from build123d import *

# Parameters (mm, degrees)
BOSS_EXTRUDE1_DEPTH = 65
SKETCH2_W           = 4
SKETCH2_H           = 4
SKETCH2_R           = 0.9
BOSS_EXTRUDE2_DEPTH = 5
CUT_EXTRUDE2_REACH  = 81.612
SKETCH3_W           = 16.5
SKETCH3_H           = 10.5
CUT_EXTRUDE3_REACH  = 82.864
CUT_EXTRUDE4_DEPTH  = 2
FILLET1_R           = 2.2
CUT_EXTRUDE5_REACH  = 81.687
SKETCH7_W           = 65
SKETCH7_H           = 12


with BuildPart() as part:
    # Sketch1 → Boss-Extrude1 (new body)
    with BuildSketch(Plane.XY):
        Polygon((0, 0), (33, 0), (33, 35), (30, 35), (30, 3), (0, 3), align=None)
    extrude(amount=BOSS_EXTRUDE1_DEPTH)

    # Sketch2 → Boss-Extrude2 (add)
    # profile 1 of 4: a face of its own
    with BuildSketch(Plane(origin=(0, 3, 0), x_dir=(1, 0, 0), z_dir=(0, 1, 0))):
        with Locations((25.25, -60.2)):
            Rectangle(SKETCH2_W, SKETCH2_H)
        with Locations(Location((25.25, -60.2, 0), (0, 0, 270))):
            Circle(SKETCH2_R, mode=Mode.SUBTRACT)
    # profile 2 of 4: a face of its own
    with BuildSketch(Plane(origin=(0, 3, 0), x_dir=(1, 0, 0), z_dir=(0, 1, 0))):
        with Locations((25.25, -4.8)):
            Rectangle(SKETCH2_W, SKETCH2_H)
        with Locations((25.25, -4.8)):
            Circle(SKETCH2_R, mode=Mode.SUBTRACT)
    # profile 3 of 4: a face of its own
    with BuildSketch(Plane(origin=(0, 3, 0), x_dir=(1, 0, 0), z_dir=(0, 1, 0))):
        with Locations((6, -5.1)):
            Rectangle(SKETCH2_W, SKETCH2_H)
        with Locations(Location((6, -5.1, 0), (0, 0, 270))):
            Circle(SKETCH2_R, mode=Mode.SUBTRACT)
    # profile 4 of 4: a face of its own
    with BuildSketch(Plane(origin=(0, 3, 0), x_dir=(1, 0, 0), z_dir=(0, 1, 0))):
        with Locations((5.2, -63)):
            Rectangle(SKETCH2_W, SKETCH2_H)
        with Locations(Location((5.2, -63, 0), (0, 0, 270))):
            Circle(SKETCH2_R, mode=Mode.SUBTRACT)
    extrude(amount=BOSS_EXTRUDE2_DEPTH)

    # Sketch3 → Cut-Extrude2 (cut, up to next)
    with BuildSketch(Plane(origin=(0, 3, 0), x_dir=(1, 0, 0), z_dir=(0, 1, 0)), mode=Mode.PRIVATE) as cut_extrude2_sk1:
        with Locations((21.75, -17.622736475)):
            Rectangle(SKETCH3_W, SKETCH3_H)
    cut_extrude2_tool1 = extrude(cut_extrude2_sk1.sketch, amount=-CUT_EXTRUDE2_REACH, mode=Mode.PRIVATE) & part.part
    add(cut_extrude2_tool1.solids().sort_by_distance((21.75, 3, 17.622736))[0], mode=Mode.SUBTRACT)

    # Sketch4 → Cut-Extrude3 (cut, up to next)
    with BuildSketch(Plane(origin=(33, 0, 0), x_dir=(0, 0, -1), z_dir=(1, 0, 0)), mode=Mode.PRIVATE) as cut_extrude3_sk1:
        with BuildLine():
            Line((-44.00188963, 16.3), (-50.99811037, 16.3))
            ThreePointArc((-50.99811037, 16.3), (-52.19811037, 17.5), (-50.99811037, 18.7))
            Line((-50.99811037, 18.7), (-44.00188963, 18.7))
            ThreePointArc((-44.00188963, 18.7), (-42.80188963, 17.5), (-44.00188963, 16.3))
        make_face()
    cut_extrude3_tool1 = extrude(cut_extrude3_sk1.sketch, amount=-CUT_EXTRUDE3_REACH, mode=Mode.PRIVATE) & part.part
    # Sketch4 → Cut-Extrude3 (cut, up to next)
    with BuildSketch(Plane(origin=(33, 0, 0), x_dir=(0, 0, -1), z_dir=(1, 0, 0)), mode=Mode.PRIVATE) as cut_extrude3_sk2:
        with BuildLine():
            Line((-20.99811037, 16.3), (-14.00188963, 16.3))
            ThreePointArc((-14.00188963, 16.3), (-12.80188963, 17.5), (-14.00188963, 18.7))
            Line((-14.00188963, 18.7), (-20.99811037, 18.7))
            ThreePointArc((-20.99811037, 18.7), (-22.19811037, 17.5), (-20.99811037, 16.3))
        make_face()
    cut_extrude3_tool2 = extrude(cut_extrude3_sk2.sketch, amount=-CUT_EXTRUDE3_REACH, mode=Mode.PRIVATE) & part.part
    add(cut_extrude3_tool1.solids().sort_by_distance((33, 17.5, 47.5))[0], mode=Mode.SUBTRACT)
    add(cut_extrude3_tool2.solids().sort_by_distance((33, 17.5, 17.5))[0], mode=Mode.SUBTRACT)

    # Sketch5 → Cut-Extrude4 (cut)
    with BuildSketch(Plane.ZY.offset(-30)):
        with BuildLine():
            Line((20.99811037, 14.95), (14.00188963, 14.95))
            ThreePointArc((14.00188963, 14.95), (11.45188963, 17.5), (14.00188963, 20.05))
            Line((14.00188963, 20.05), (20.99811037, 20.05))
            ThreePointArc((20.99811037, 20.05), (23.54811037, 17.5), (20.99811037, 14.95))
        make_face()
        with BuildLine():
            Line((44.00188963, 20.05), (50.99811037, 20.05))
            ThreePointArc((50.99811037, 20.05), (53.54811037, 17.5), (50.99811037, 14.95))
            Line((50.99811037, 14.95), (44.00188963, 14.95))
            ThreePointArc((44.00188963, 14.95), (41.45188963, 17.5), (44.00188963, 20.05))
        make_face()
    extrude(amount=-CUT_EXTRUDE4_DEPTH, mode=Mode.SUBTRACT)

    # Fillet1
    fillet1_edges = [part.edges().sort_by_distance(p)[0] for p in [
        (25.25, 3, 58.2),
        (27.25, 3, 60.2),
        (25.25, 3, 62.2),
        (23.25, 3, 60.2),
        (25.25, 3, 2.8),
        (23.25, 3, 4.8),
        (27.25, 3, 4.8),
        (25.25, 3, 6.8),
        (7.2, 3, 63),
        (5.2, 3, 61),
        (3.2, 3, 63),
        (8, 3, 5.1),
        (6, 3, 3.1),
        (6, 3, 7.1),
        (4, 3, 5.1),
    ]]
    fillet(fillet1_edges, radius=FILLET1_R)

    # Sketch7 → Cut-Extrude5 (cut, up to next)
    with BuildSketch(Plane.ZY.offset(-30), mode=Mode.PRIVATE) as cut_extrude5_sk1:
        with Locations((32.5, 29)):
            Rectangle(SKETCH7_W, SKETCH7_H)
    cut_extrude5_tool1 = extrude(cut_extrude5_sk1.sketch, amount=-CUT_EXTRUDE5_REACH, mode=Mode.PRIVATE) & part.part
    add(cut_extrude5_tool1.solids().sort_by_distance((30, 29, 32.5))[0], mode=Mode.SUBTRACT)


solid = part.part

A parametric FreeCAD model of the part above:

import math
import FreeCAD as App
import Part
import Sketcher

V = App.Vector


def edges_at(feature, points):
    """Names of the edges that pass closest to the given points."""
    edges = feature.Shape.Edges
    near = lambda p: min(range(len(edges)), key=lambda i: edges[i].distToShape(Part.Vertex(*p))[0])
    return sorted({f"Edge{near(p) + 1}" for p in points})

doc = App.newDocument("Part")
body = doc.addObject("PartDesign::Body", "Body")

# Sketch on XY plane
sketch1 = body.newObject("Sketcher::SketchObject", "Sketch")
sketch1.AttachmentSupport = (doc.getObject("XY_Plane"), [""])
sketch1.MapMode = "FlatFace"
sketch1.addGeometry(Part.LineSegment(V(0, 0, 0), V(33, 0, 0)), False)
sketch1.addGeometry(Part.LineSegment(V(33, 0, 0), V(33, 35, 0)), False)
sketch1.addGeometry(Part.LineSegment(V(33, 35, 0), V(30, 35, 0)), False)
sketch1.addGeometry(Part.LineSegment(V(30, 35, 0), V(30, 3, 0)), False)
sketch1.addGeometry(Part.LineSegment(V(30, 3, 0), V(0, 3, 0)), False)
sketch1.addGeometry(Part.LineSegment(V(0, 3, 0), V(0, 0, 0)), False)
sketch1.addConstraint(Sketcher.Constraint("Coincident", 0, 2, 1, 1))
sketch1.addConstraint(Sketcher.Constraint("Coincident", 1, 2, 2, 1))
sketch1.addConstraint(Sketcher.Constraint("Coincident", 2, 2, 3, 1))
sketch1.addConstraint(Sketcher.Constraint("Coincident", 3, 2, 4, 1))
sketch1.addConstraint(Sketcher.Constraint("Coincident", 4, 2, 5, 1))
sketch1.addConstraint(Sketcher.Constraint("Coincident", 5, 2, 0, 1))
sketch1.addConstraint(Sketcher.Constraint("Horizontal", 0))
sketch1.addConstraint(Sketcher.Constraint("Vertical", 1))
sketch1.addConstraint(Sketcher.Constraint("Horizontal", 2))
sketch1.addConstraint(Sketcher.Constraint("Vertical", 3))
sketch1.addConstraint(Sketcher.Constraint("Horizontal", 4))
sketch1.addConstraint(Sketcher.Constraint("Vertical", 5))
sketch1.addConstraint(Sketcher.Constraint("Coincident", 5, 2, -1, 1))
sketch1.addConstraint(Sketcher.Constraint("Equal", 2, 5))
sketch1.addConstraint(Sketcher.Constraint("DistanceX", 0, 1, 0, 2, 33.0))
sketch1.addConstraint(Sketcher.Constraint("DistanceX", 2, 2, 2, 1, 3.0))
sketch1.addConstraint(Sketcher.Constraint("DistanceY", 1, 1, 1, 2, 35.0))
pad1 = body.newObject("PartDesign::Pad", "Pad")
pad1.Profile = sketch1
pad1.Length = 65

# Sketch on XZ plane
sketch2 = body.newObject("Sketcher::SketchObject", "Sketch001")
sketch2.AttachmentSupport = (doc.getObject("XZ_Plane"), [""])
sketch2.MapMode = "FlatFace"
sketch2.AttachmentOffset = App.Placement(V(0, 0, -3), App.Rotation())
sketch2.addGeometry(Part.LineSegment(V(23.2, 58.2, 0), V(23.2, 62.2, 0)), False)
sketch2.addGeometry(Part.LineSegment(V(23.2, 62.2, 0), V(27.2, 62.2, 0)), False)
sketch2.addGeometry(Part.LineSegment(V(27.2, 62.2, 0), V(27.2, 58.2, 0)), False)
sketch2.addGeometry(Part.LineSegment(V(27.2, 58.2, 0), V(23.2, 58.2, 0)), False)
sketch2.addGeometry(Part.Circle(V(25.2, 60.2, 0), V(0, 0, 1), 0.9), False)
sketch2.addGeometry(Part.LineSegment(V(23.2, 2.8, 0), V(23.2, 6.8, 0)), False)
sketch2.addGeometry(Part.LineSegment(V(23.2, 6.8, 0), V(27.2, 6.8, 0)), False)
sketch2.addGeometry(Part.LineSegment(V(27.2, 6.8, 0), V(27.2, 2.8, 0)), False)
sketch2.addGeometry(Part.LineSegment(V(27.2, 2.8, 0), V(23.2, 2.8, 0)), False)
sketch2.addGeometry(Part.Circle(V(25.2, 4.8, 0), V(0, 0, 1), 0.9), False)
sketch2.addGeometry(Part.LineSegment(V(4, 3.1, 0), V(4, 7.1, 0)), False)
sketch2.addGeometry(Part.LineSegment(V(4, 7.1, 0), V(8, 7.1, 0)), False)
sketch2.addGeometry(Part.LineSegment(V(8, 7.1, 0), V(8, 3.1, 0)), False)
sketch2.addGeometry(Part.LineSegment(V(8, 3.1, 0), V(4, 3.1, 0)), False)
sketch2.addGeometry(Part.Circle(V(6, 5.1, 0), V(0, 0, 1), 0.9), False)
sketch2.addGeometry(Part.LineSegment(V(3.2, 61, 0), V(3.2, 65, 0)), False)
sketch2.addGeometry(Part.LineSegment(V(3.2, 65, 0), V(7.2, 65, 0)), False)
sketch2.addGeometry(Part.LineSegment(V(7.2, 65, 0), V(7.2, 61, 0)), False)
sketch2.addGeometry(Part.LineSegment(V(7.2, 61, 0), V(3.2, 61, 0)), False)
sketch2.addGeometry(Part.Circle(V(5.2, 63, 0), V(0, 0, 1), 0.9), False)
sketch2.addConstraint(Sketcher.Constraint("Coincident", 0, 2, 1, 1))
sketch2.addConstraint(Sketcher.Constraint("Coincident", 1, 2, 2, 1))
sketch2.addConstraint(Sketcher.Constraint("Coincident", 2, 2, 3, 1))
sketch2.addConstraint(Sketcher.Constraint("Coincident", 3, 2, 0, 1))
sketch2.addConstraint(Sketcher.Constraint("Coincident", 5, 2, 6, 1))
sketch2.addConstraint(Sketcher.Constraint("Coincident", 6, 2, 7, 1))
sketch2.addConstraint(Sketcher.Constraint("Coincident", 7, 2, 8, 1))
sketch2.addConstraint(Sketcher.Constraint("Coincident", 8, 2, 5, 1))
sketch2.addConstraint(Sketcher.Constraint("Coincident", 10, 2, 11, 1))
sketch2.addConstraint(Sketcher.Constraint("Coincident", 11, 2, 12, 1))
sketch2.addConstraint(Sketcher.Constraint("Coincident", 12, 2, 13, 1))
sketch2.addConstraint(Sketcher.Constraint("Coincident", 13, 2, 10, 1))
sketch2.addConstraint(Sketcher.Constraint("Coincident", 15, 2, 16, 1))
sketch2.addConstraint(Sketcher.Constraint("Coincident", 16, 2, 17, 1))
sketch2.addConstraint(Sketcher.Constraint("Coincident", 17, 2, 18, 1))
sketch2.addConstraint(Sketcher.Constraint("Coincident", 18, 2, 15, 1))
sketch2.addConstraint(Sketcher.Constraint("Vertical", 0))
sketch2.addConstraint(Sketcher.Constraint("Horizontal", 1))
sketch2.addConstraint(Sketcher.Constraint("Vertical", 2))
sketch2.addConstraint(Sketcher.Constraint("Horizontal", 3))
sketch2.addConstraint(Sketcher.Constraint("Vertical", 5))
sketch2.addConstraint(Sketcher.Constraint("Horizontal", 6))
sketch2.addConstraint(Sketcher.Constraint("Vertical", 7))
sketch2.addConstraint(Sketcher.Constraint("Horizontal", 8))
sketch2.addConstraint(Sketcher.Constraint("Vertical", 10))
sketch2.addConstraint(Sketcher.Constraint("Horizontal", 11))
sketch2.addConstraint(Sketcher.Constraint("Vertical", 12))
sketch2.addConstraint(Sketcher.Constraint("Horizontal", 13))
sketch2.addConstraint(Sketcher.Constraint("Vertical", 15))
sketch2.addConstraint(Sketcher.Constraint("Horizontal", 16))
sketch2.addConstraint(Sketcher.Constraint("Vertical", 17))
sketch2.addConstraint(Sketcher.Constraint("Horizontal", 18))
sketch2.addConstraint(Sketcher.Constraint("Equal", 4, 9))
sketch2.addConstraint(Sketcher.Constraint("Equal", 9, 14))
sketch2.addConstraint(Sketcher.Constraint("Equal", 14, 19))
sketch2.addConstraint(Sketcher.Constraint("Vertical", 4, 3, 9, 3))
sketch2.addConstraint(Sketcher.Constraint("Vertical", 3, 2, 5, 2))
sketch2.addConstraint(Sketcher.Constraint("Vertical", 2, 2, 6, 2))
sketch2.addConstraint(Sketcher.Constraint("Equal", 8, 11))
sketch2.addConstraint(Sketcher.Constraint("Equal", 13, 16))
sketch2.addConstraint(Sketcher.Constraint("Equal", 18, 0))
sketch2.addConstraint(Sketcher.Constraint("Equal", 2, 5))
sketch2.addConstraint(Sketcher.Constraint("Equal", 7, 10))
sketch2.addConstraint(Sketcher.Constraint("Equal", 12, 15))
sketch2.addConstraint(Sketcher.Constraint("Diameter", 4, 1.8))
sketch2.addConstraint(Sketcher.Constraint("DistanceX", 1, 1, 1, 2, 4.0))
sketch2.addConstraint(Sketcher.Constraint("DistanceX", -1, 1, 14, 3, 6.0))
sketch2.addConstraint(Sketcher.Constraint("DistanceY", -1, 1, 19, 3, 63.0))
sketch2.addConstraint(Sketcher.Constraint("DistanceX", -1, 1, 10, 2, 4.0))
sketch2.addConstraint(Sketcher.Constraint("DistanceY", -1, 1, 15, 2, 65.0))
sketch2.addConstraint(Sketcher.Constraint("DistanceX", 0, 2, 4, 3, 2.0))
sketch2.addConstraint(Sketcher.Constraint("DistanceY", 4, 3, 0, 2, 2.0))
sketch2.addConstraint(Sketcher.Constraint("DistanceY", 9, 3, 5, 2, 2.0))
sketch2.addConstraint(Sketcher.Constraint("DistanceY", 14, 3, 10, 2, 2.0))
sketch2.addConstraint(Sketcher.Constraint("DistanceX", 15, 2, 19, 3, 2.0))
sketch2.addConstraint(Sketcher.Constraint("DistanceY", -1, 1, 4, 3, 60.2))
sketch2.addConstraint(Sketcher.Constraint("DistanceY", -1, 1, 9, 3, 4.8))
sketch2.addConstraint(Sketcher.Constraint("DistanceY", -1, 1, 14, 3, 5.1))
sketch2.addConstraint(Sketcher.Constraint("DistanceX", -1, 1, 19, 3, 5.2))
sketch2.addConstraint(Sketcher.Constraint("DistanceX", -1, 1, 4, 3, 25.25))
pad2 = body.newObject("PartDesign::Pad", "Pad001")
pad2.Profile = sketch2
pad2.Length = 5
pad2.Reversed = True

# Sketch on XZ plane
sketch3 = body.newObject("Sketcher::SketchObject", "Sketch002")
sketch3.AttachmentSupport = (doc.getObject("XZ_Plane"), [""])
sketch3.MapMode = "FlatFace"
sketch3.AttachmentOffset = App.Placement(V(0, 0, -3), App.Rotation())
sketch3.addGeometry(Part.LineSegment(V(14, 12, 0), V(14, 23, 0)), False)
sketch3.addGeometry(Part.LineSegment(V(14, 23, 0), V(30, 23, 0)), False)
sketch3.addGeometry(Part.LineSegment(V(30, 23, 0), V(30, 12, 0)), False)
sketch3.addGeometry(Part.LineSegment(V(30, 12, 0), V(14, 12, 0)), False)
sketch3.addConstraint(Sketcher.Constraint("Coincident", 0, 2, 1, 1))
sketch3.addConstraint(Sketcher.Constraint("Coincident", 1, 2, 2, 1))
sketch3.addConstraint(Sketcher.Constraint("Coincident", 2, 2, 3, 1))
sketch3.addConstraint(Sketcher.Constraint("Coincident", 3, 2, 0, 1))
sketch3.addConstraint(Sketcher.Constraint("Vertical", 0))
sketch3.addConstraint(Sketcher.Constraint("Horizontal", 1))
sketch3.addConstraint(Sketcher.Constraint("Vertical", 2))
sketch3.addConstraint(Sketcher.Constraint("Horizontal", 3))
sketch3.addConstraint(Sketcher.Constraint("DistanceX", 1, 1, 1, 2, 16.5))
sketch3.addConstraint(Sketcher.Constraint("DistanceY", 0, 1, 0, 2, 10.5))
sketch3.addConstraint(Sketcher.Constraint("DistanceX", -1, 1, 1, 2, 30.0))
sketch3.addConstraint(Sketcher.Constraint("DistanceY", -1, 1, 0, 2, 22.872736))
pocket1 = body.newObject("PartDesign::Pocket", "Pocket")
pocket1.Profile = sketch3
pocket1.Type = "UpToFirst"
pocket1.Reversed = True

# Sketch on YZ plane
sketch4 = body.newObject("Sketcher::SketchObject", "Sketch003")
sketch4.AttachmentSupport = (doc.getObject("YZ_Plane"), [""])
sketch4.MapMode = "FlatFace"
sketch4.AttachmentOffset = App.Placement(V(0, 0, 33), App.Rotation())
sketch4.addGeometry(Part.LineSegment(V(16.3, 51, 0), V(16.3, 44, 0)), False)
sketch4.addGeometry(Part.ArcOfCircle(Part.Circle(V(17.5, 44, 0), V(0, 0, 1), 1.2), math.radians(180), math.radians(360)), False)
sketch4.addGeometry(Part.LineSegment(V(18.7, 44, 0), V(18.7, 51, 0)), False)
sketch4.addGeometry(Part.ArcOfCircle(Part.Circle(V(17.5, 51, 0), V(0, 0, 1), 1.2), math.radians(0), math.radians(180)), False)
sketch4.addConstraint(Sketcher.Constraint("Tangent", 0, 2, 1, 1))
sketch4.addConstraint(Sketcher.Constraint("Tangent", 1, 2, 2, 1))
sketch4.addConstraint(Sketcher.Constraint("Tangent", 2, 2, 3, 1))
sketch4.addConstraint(Sketcher.Constraint("Tangent", 3, 2, 0, 1))
sketch4.addConstraint(Sketcher.Constraint("Vertical", 0))
sketch4.addConstraint(Sketcher.Constraint("Vertical", 2))
sketch4.addConstraint(Sketcher.Constraint("Radius", 1, 1.2))
sketch4.addConstraint(Sketcher.Constraint("DistanceX", -1, 1, 1, 3, 17.5))
sketch4.addConstraint(Sketcher.Constraint("DistanceY", 0, 2, 0, 1, 6.996221))
sketch4.addConstraint(Sketcher.Constraint("DistanceY", -1, 1, 1, 3, 44.00189))
pocket2 = body.newObject("PartDesign::Pocket", "Pocket001")
pocket2.Profile = sketch4
pocket2.Type = "UpToFirst"

# Sketch on YZ plane
sketch5 = body.newObject("Sketcher::SketchObject", "Sketch004")
sketch5.AttachmentSupport = (doc.getObject("YZ_Plane"), [""])
sketch5.MapMode = "FlatFace"
sketch5.AttachmentOffset = App.Placement(V(0, 0, 33), App.Rotation())
sketch5.addGeometry(Part.LineSegment(V(16.3, 21, 0), V(16.3, 14, 0)), False)
sketch5.addGeometry(Part.ArcOfCircle(Part.Circle(V(17.5, 14, 0), V(0, 0, 1), 1.2), math.radians(180), math.radians(360)), False)
sketch5.addGeometry(Part.LineSegment(V(18.7, 14, 0), V(18.7, 21, 0)), False)
sketch5.addGeometry(Part.ArcOfCircle(Part.Circle(V(17.5, 21, 0), V(0, 0, 1), 1.2), math.radians(0), math.radians(180)), False)
sketch5.addConstraint(Sketcher.Constraint("Tangent", 0, 2, 1, 1))
sketch5.addConstraint(Sketcher.Constraint("Tangent", 1, 2, 2, 1))
sketch5.addConstraint(Sketcher.Constraint("Tangent", 2, 2, 3, 1))
sketch5.addConstraint(Sketcher.Constraint("Tangent", 3, 2, 0, 1))
sketch5.addConstraint(Sketcher.Constraint("Vertical", 0))
sketch5.addConstraint(Sketcher.Constraint("Vertical", 2))
sketch5.addConstraint(Sketcher.Constraint("Radius", 1, 1.2))
sketch5.addConstraint(Sketcher.Constraint("DistanceX", -1, 1, 1, 3, 17.5))
sketch5.addConstraint(Sketcher.Constraint("DistanceY", 0, 2, 0, 1, 6.996221))
sketch5.addConstraint(Sketcher.Constraint("DistanceY", -1, 1, 1, 3, 14.00189))
pocket3 = body.newObject("PartDesign::Pocket", "Pocket002")
pocket3.Profile = sketch5
pocket3.Type = "UpToFirst"

# Sketch on YZ plane
sketch6 = body.newObject("Sketcher::SketchObject", "Sketch005")
sketch6.AttachmentSupport = (doc.getObject("YZ_Plane"), [""])
sketch6.MapMode = "FlatFace"
sketch6.AttachmentOffset = App.Placement(V(0, 0, 30), App.Rotation())
sketch6.addGeometry(Part.LineSegment(V(14.9, 14, 0), V(14.9, 21, 0)), False)
sketch6.addGeometry(Part.ArcOfCircle(Part.Circle(V(17.5, 21, 0), V(0, 0, 1), 2.5), math.radians(0), math.radians(180)), False)
sketch6.addGeometry(Part.LineSegment(V(20.1, 21, 0), V(20.1, 14, 0)), False)
sketch6.addGeometry(Part.ArcOfCircle(Part.Circle(V(17.5, 14, 0), V(0, 0, 1), 2.5), math.radians(180), math.radians(360)), False)
sketch6.addGeometry(Part.LineSegment(V(20.1, 51, 0), V(20.1, 44, 0)), False)
sketch6.addGeometry(Part.ArcOfCircle(Part.Circle(V(17.5, 44, 0), V(0, 0, 1), 2.5), math.radians(180), math.radians(360)), False)
sketch6.addGeometry(Part.LineSegment(V(14.9, 44, 0), V(14.9, 51, 0)), False)
sketch6.addGeometry(Part.ArcOfCircle(Part.Circle(V(17.5, 51, 0), V(0, 0, 1), 2.5), math.radians(0), math.radians(180)), False)
sketch6.addConstraint(Sketcher.Constraint("Tangent", 0, 2, 1, 2))
sketch6.addConstraint(Sketcher.Constraint("Tangent", 1, 1, 2, 1))
sketch6.addConstraint(Sketcher.Constraint("Tangent", 2, 2, 3, 2))
sketch6.addConstraint(Sketcher.Constraint("Tangent", 3, 1, 0, 1))
sketch6.addConstraint(Sketcher.Constraint("Tangent", 4, 2, 5, 2))
sketch6.addConstraint(Sketcher.Constraint("Tangent", 5, 1, 6, 1))
sketch6.addConstraint(Sketcher.Constraint("Tangent", 6, 2, 7, 2))
sketch6.addConstraint(Sketcher.Constraint("Tangent", 7, 1, 4, 1))
sketch6.addConstraint(Sketcher.Constraint("Vertical", 0))
sketch6.addConstraint(Sketcher.Constraint("Vertical", 2))
sketch6.addConstraint(Sketcher.Constraint("Vertical", 4))
sketch6.addConstraint(Sketcher.Constraint("Vertical", 6))
sketch6.addConstraint(Sketcher.Constraint("Equal", 3, 5))
sketch6.addConstraint(Sketcher.Constraint("Vertical", 3, 3, 5, 3))
sketch6.addConstraint(Sketcher.Constraint("Equal", 2, 4))
sketch6.addConstraint(Sketcher.Constraint("Radius", 1, 2.55))
sketch6.addConstraint(Sketcher.Constraint("DistanceY", 3, 3, 5, 3, 30.0))
sketch6.addConstraint(Sketcher.Constraint("DistanceX", -1, 1, 1, 3, 17.5))
sketch6.addConstraint(Sketcher.Constraint("DistanceY", 0, 1, 0, 2, 6.996221))
sketch6.addConstraint(Sketcher.Constraint("DistanceY", -1, 1, 1, 3, 20.99811))
pocket4 = body.newObject("PartDesign::Pocket", "Pocket003")
pocket4.Profile = sketch6
pocket4.Length = 2
pocket4.Reversed = True
doc.recompute()

fillet = body.newObject("PartDesign::Fillet", "Fillet")
fillet.Base = (pocket4, edges_at(pocket4, [
    (25.25, 3, 58.2),
    (27.25, 3, 60.2),
    (25.25, 3, 62.2),
    (23.25, 3, 60.2),
    (25.25, 3, 2.8),
    (23.25, 3, 4.8),
    (27.25, 3, 4.8),
    (25.25, 3, 6.8),
    (7.2, 3, 63),
    (5.2, 3, 61),
    (3.2, 3, 63),
    (8, 3, 5.1),
    (6, 3, 3.1),
    (6, 3, 7.1),
    (4, 3, 5.1),
]))
fillet.Radius = 2.2

# Sketch on YZ plane
sketch7 = body.newObject("Sketcher::SketchObject", "Sketch006")
sketch7.AttachmentSupport = (doc.getObject("YZ_Plane"), [""])
sketch7.MapMode = "FlatFace"
sketch7.AttachmentOffset = App.Placement(V(0, 0, 30), App.Rotation())
sketch7.addGeometry(Part.LineSegment(V(35, 0, 0), V(23, 0, 0)), False)
sketch7.addGeometry(Part.LineSegment(V(23, 0, 0), V(23, 65, 0)), False)
sketch7.addGeometry(Part.LineSegment(V(23, 65, 0), V(35, 65, 0)), False)
sketch7.addGeometry(Part.LineSegment(V(35, 65, 0), V(35, 0, 0)), False)
sketch7.addConstraint(Sketcher.Constraint("Coincident", 0, 2, 1, 1))
sketch7.addConstraint(Sketcher.Constraint("Coincident", 1, 2, 2, 1))
sketch7.addConstraint(Sketcher.Constraint("Coincident", 2, 2, 3, 1))
sketch7.addConstraint(Sketcher.Constraint("Coincident", 3, 2, 0, 1))
sketch7.addConstraint(Sketcher.Constraint("Horizontal", 0))
sketch7.addConstraint(Sketcher.Constraint("Vertical", 1))
sketch7.addConstraint(Sketcher.Constraint("Horizontal", 2))
sketch7.addConstraint(Sketcher.Constraint("Vertical", 3))
sketch7.addConstraint(Sketcher.Constraint("PointOnObject", 0, 2, -1))
sketch7.addConstraint(Sketcher.Constraint("DistanceX", 0, 2, 0, 1, 12.0))
sketch7.addConstraint(Sketcher.Constraint("DistanceY", 1, 1, 1, 2, 65.0))
sketch7.addConstraint(Sketcher.Constraint("DistanceX", -1, 1, 0, 2, 23.0))
pocket5 = body.newObject("PartDesign::Pocket", "Pocket004")
pocket5.Profile = sketch7
pocket5.Type = "UpToFirst"
pocket5.Reversed = True

doc.recompute()
